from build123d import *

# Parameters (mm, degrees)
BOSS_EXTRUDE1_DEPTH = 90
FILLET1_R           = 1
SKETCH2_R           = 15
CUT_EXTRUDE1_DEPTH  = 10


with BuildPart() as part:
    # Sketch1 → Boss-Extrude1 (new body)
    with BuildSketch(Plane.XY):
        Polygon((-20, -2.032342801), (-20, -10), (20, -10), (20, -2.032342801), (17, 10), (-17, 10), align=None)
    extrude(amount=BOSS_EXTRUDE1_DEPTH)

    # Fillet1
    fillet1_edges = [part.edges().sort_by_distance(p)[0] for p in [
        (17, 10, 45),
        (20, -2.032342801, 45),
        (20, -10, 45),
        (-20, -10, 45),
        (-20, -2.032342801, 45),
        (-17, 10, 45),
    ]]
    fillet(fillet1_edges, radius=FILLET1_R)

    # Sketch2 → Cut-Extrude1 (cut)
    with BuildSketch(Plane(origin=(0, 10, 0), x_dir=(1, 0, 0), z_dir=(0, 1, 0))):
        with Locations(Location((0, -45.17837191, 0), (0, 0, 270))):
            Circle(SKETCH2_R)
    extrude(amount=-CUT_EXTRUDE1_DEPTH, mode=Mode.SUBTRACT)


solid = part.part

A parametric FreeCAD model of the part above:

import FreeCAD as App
import Part
import Sketcher

V = App.Vector
Q = App.Units.Quantity


def edges_at(feature, points):
    """Names of the edges that pass closest to the given points."""
    edges = feature.Shape.Edges
    near = lambda p: min(range(len(edges)), key=lambda i: edges[i].distToShape(Part.Vertex(*p))[0])
    return sorted({f"Edge{near(p) + 1}" for p in points})

doc = App.newDocument("Part")
body = doc.addObject("PartDesign::Body", "Body")

# Sketch on XY plane
sketch1 = body.newObject("Sketcher::SketchObject", "Sketch")
sketch1.AttachmentSupport = (doc.getObject("XY_Plane"), [""])
sketch1.MapMode = "FlatFace"
sketch1.addGeometry([
    Part.LineSegment(V(-20, -2, 0), V(-20, -10, 0)),  # 0
    Part.LineSegment(V(-20, -10, 0), V(20, -10, 0)),  # 1
    Part.LineSegment(V(20, -10, 0), V(20, -2, 0)),  # 2
    Part.LineSegment(V(20, -2, 0), V(17, 10, 0)),  # 3
    Part.LineSegment(V(17, 10, 0), V(-17, 10, 0)),  # 4
    Part.LineSegment(V(-17, 10, 0), V(-20, -2, 0)),  # 5
], False)
sketch1.addConstraint([
    Sketcher.Constraint("Coincident", 0, 2, 1, 1),
    Sketcher.Constraint("Coincident", 1, 2, 2, 1),
    Sketcher.Constraint("Coincident", 2, 2, 3, 1),
    Sketcher.Constraint("Coincident", 3, 2, 4, 1),
    Sketcher.Constraint("Coincident", 4, 2, 5, 1),
    Sketcher.Constraint("Coincident", 5, 2, 0, 1),
    Sketcher.Constraint("Vertical", 0),
    Sketcher.Constraint("Horizontal", 1),
    Sketcher.Constraint("Vertical", 2),
    Sketcher.Constraint("Horizontal", 4),
    Sketcher.Constraint("Symmetric", 2, 2, 5, 2, -2),
    Sketcher.Constraint("Equal", 3, 5),
    Sketcher.Constraint("DistanceX", 1, 1, 1, 2, 40.0),
    Sketcher.Constraint("DistanceX", 4, 2, 4, 1, 34.0),
    Sketcher.Constraint("Angle", 3, Q("104 deg")),
    Sketcher.Constraint("DistanceY", 0, 2, -1, 1, 10.0),
    Sketcher.Constraint("DistanceY", -1, 1, 3, 2, 10.0),
])
pad1 = body.newObject("PartDesign::Pad", "Pad")
pad1.Profile = sketch1
pad1.Length = 90
doc.recompute()

fillet = body.newObject("PartDesign::Fillet", "Fillet")
fillet.Base = (pad1, edges_at(pad1, [
    (17, 10, 45),
    (20, -2.032, 45),
    (20, -10, 45),
    (-20, -10, 45),
    (-20, -2.032, 45),
    (-17, 10, 45),
]))
fillet.Radius = 1

# Sketch on XZ plane
sketch2 = body.newObject("Sketcher::SketchObject", "Sketch001")
sketch2.AttachmentSupport = (doc.getObject("XZ_Plane"), [""])
sketch2.MapMode = "FlatFace"
sketch2.AttachmentOffset = App.Placement(V(0, 0, -10), App.Rotation())
sketch2.addGeometry(Part.Circle(V(0, 45, 0), V(0, 0, 1), 15), False)
sketch2.addConstraint([
    Sketcher.Constraint("PointOnObject", 0, 3, -2),
    Sketcher.Constraint("Diameter", 0, 30.0),
    Sketcher.Constraint("DistanceY", -1, 1, 0, 3, 45.178372),
])
pocket1 = body.newObject("PartDesign::Pocket", "Pocket")
pocket1.Profile = sketch2
pocket1.Length = 10
pocket1.Reversed = True

doc.recompute()
